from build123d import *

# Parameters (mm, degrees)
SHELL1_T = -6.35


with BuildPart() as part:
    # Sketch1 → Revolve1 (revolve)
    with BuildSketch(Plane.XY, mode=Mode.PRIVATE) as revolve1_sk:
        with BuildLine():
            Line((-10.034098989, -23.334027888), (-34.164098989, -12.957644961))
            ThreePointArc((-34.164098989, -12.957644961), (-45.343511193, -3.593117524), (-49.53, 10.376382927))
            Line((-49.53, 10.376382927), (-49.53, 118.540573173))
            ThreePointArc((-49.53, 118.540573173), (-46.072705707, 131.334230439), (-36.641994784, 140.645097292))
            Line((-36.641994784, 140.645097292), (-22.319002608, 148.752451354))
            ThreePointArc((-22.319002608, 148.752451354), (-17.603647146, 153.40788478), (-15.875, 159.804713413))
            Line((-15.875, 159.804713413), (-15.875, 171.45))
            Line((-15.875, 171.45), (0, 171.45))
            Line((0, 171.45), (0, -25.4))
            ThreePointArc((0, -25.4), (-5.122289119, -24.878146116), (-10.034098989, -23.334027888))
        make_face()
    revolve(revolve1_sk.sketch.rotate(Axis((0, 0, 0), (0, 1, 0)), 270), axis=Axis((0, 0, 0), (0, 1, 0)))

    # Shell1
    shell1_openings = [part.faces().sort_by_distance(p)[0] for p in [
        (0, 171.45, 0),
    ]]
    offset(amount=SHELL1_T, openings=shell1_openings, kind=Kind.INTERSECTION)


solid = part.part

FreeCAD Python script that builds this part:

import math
import FreeCAD as App
import Part
import Sketcher

V = App.Vector
Q = App.Units.Quantity


def faces_at(feature, points):
    """Names of the faces that lie closest to the given points."""
    faces = feature.Shape.Faces
    near = lambda p: min(range(len(faces)), key=lambda i: faces[i].distToShape(Part.Vertex(*p))[0])
    return sorted({f"Face{near(p) + 1}" for p in points})

doc = App.newDocument("Part")
body = doc.addObject("PartDesign::Body", "Body")

# Sketch on XY plane
sketch1 = body.newObject("Sketcher::SketchObject", "Sketch")
sketch1.AttachmentSupport = (doc.getObject("XY_Plane"), [""])
sketch1.MapMode = "FlatFace"
sketch1.addGeometry([
    Part.LineSegment(V(-34.164099, -12.957645, 0), V(-10.034099, -23.334028, 0)),  # 0
    Part.ArcOfCircle(Part.Circle(V(0, 0, 0), V(0, 0, 1), 25.4), math.radians(-113.268673), math.radians(-90)),  # 1
    Part.LineSegment(V(0, -25.4, 0), V(0, 171.45, 0)),  # 2
    Part.LineSegment(V(0, 171.45, 0), V(-15.875, 171.45, 0)),  # 3
    Part.LineSegment(V(-15.875, 171.45, 0), V(-15.875, 159.804713, 0)),  # 4
    Part.ArcOfCircle(Part.Circle(V(-28.575, 159.804713, 0), V(0, 0, 1), 12.7), math.radians(-60.488501), math.radians(0)),  # 5
    Part.LineSegment(V(-22.319003, 148.752451, 0), V(-36.641995, 140.645097, 0)),  # 6
    Part.ArcOfCircle(Part.Circle(V(-24.13, 118.540573, 0), V(0, 0, 1), 25.4), math.radians(119.511499), math.radians(180)),  # 7
    Part.LineSegment(V(-49.53, 118.540573, 0), V(-49.53, 10.376383, 0)),  # 8
    Part.ArcOfCircle(Part.Circle(V(-24.13, 10.376383, 0), V(0, 0, 1), 25.4), math.radians(-180), math.radians(-113.268673)),  # 9
], False)
sketch1.addConstraint([
    Sketcher.Constraint("Tangent", 0, 2, 1, 1),
    Sketcher.Constraint("Coincident", 1, 2, 2, 1),
    Sketcher.Constraint("Coincident", 2, 2, 3, 1),
    Sketcher.Constraint("Coincident", 3, 2, 4, 1),
    Sketcher.Constraint("Tangent", 4, 2, 5, 2),
    Sketcher.Constraint("Tangent", 5, 1, 6, 1),
    Sketcher.Constraint("Tangent", 6, 2, 7, 1),
    Sketcher.Constraint("Tangent", 7, 2, 8, 1),
    Sketcher.Constraint("Tangent", 8, 2, 9, 1),
    Sketcher.Constraint("Tangent", 9, 2, 0, 1),
    Sketcher.Constraint("Vertical", 2),
    Sketcher.Constraint("Horizontal", 3),
    Sketcher.Constraint("Vertical", 4),
    Sketcher.Constraint("Vertical", 8),
    Sketcher.Constraint("Coincident", 1, 3, -1, 1),
    Sketcher.Constraint("Equal", 1, 7),
    Sketcher.Constraint("Equal", 7, 9),
    Sketcher.Constraint("PointOnObject", 1, 2, -2),
    Sketcher.Constraint("Radius", 1, Q("1 in")),
    Sketcher.Constraint("Radius", 5, Q("0.5 in")),
    Sketcher.Constraint("DistanceY", 2, 1, 2, 2, Q("7.75 in")),
    Sketcher.Constraint("DistanceX", 3, 2, 3, 1, Q("0.625 in")),
    Sketcher.Constraint("DistanceX", 7, 3, -1, 1, Q("0.95 in")),
    Sketcher.Constraint("DistanceY", 8, 2, 8, 1, Q("108.16419 mm")),
    Sketcher.Constraint("DistanceX", 0, 2, -1, 1, Q("10.034099 mm")),
    Sketcher.Constraint("Distance", 6, Q("16.45835 mm")),
])
revolution = body.newObject("PartDesign::Revolution", "Revolution")
revolution.Profile = sketch1
revolution.ReferenceAxis = (sketch1, ["V_Axis"])
revolution.Angle = 360
doc.recompute()

thickness = body.newObject("PartDesign::Thickness", "Thickness")
thickness.Base = (revolution, faces_at(revolution, [(0, 171.45, 0)]))
thickness.Value = Q("0.25 in")
thickness.Reversed = True
thickness.Join = "Intersection"

doc.recompute()
